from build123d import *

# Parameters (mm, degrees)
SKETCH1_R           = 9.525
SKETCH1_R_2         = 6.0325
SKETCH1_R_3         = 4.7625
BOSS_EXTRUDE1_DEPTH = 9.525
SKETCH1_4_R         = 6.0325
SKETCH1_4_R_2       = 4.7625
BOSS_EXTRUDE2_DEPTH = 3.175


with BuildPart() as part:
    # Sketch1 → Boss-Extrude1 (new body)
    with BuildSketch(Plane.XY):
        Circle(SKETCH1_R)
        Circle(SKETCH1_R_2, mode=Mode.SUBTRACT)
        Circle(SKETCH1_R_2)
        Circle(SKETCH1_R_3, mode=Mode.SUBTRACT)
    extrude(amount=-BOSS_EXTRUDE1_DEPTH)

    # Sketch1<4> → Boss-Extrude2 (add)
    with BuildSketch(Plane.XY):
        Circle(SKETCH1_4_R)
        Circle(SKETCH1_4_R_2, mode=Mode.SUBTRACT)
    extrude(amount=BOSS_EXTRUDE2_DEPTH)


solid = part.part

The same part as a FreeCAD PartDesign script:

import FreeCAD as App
import Part
import Sketcher

V = App.Vector
Q = App.Units.Quantity

doc = App.newDocument("Part")
body = doc.addObject("PartDesign::Body", "Body")

sketch1 = body.newObject("Sketcher::SketchObject", "Sketch")
sketch1.AttachmentSupport = (doc.getObject("XY_Plane"), [""])
sketch1.MapMode = "FlatFace"
sketch1.addGeometry([
    Part.Circle(V(0, 0, 0), V(0, 0, 1), 9.5),
    Part.Circle(V(0, 0, 0), V(0, 0, 1), 4.8),
], False)
sketch1.addConstraint([
    Sketcher.Constraint("Coincident", 0, 3, -1, 1),
    Sketcher.Constraint("Coincident", 1, 3, -1, 1),
    Sketcher.Constraint("Diameter", 0, Q("0.75 in")),
    Sketcher.Constraint("Diameter", 1, Q("0.375 in")),
])
pad1 = body.newObject("PartDesign::Pad", "Pad")
pad1.Profile = sketch1
pad1.Length = Q("0.375 in")
pad1.Reversed = True

sketch2 = body.newObject("Sketcher::SketchObject", "Sketch001")
sketch2.AttachmentSupport = (doc.getObject("XY_Plane"), [""])
sketch2.MapMode = "FlatFace"
sketch2.addGeometry([
    Part.Circle(V(0, 0, 0), V(0, 0, 1), 6),
    Part.Circle(V(0, 0, 0), V(0, 0, 1), 4.8),
], False)
sketch2.addConstraint([
    Sketcher.Constraint("Coincident", 0, 3, -1, 1),
    Sketcher.Constraint("Coincident", 1, 3, -1, 1),
    Sketcher.Constraint("Diameter", 0, Q("0.475 in")),
    Sketcher.Constraint("Diameter", 1, Q("0.375 in")),
])
pad2 = body.newObject("PartDesign::Pad", "Pad001")
pad2.Profile = sketch2
pad2.Length = Q("0.125 in")

doc.recompute()
